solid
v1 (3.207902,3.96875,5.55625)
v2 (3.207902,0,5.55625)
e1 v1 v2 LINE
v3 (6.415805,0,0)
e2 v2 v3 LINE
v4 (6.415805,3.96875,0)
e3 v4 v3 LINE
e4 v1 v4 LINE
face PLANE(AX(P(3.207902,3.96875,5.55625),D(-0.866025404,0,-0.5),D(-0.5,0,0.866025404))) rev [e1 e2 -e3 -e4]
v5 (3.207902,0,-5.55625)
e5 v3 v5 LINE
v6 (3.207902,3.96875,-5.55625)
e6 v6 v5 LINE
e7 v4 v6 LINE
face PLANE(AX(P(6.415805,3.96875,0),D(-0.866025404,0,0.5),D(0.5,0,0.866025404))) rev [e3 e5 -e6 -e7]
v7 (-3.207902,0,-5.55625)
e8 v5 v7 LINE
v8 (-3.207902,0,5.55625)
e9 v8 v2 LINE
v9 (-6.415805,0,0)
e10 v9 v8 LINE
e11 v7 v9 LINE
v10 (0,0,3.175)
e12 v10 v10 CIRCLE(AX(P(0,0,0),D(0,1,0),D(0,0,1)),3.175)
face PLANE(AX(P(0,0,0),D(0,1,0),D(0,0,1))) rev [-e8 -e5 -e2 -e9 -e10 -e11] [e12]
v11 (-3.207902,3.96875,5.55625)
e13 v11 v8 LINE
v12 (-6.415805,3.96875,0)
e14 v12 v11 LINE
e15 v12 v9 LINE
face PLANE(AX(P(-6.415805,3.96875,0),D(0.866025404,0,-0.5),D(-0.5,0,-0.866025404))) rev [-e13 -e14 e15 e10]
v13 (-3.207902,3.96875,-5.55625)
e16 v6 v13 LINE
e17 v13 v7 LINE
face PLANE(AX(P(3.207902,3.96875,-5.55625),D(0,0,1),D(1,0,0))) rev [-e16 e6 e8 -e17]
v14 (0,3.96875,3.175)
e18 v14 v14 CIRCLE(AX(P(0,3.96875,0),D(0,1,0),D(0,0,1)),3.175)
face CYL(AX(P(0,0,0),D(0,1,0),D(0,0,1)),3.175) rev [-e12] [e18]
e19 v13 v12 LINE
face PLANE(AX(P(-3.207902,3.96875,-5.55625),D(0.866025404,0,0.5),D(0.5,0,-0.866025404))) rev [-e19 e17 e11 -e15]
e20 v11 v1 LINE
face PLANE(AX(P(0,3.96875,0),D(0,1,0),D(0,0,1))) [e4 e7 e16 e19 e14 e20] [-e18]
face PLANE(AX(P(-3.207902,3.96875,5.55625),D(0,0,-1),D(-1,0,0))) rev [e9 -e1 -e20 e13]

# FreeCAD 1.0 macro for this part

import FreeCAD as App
import Part
import Sketcher
from FreeCAD import Vector
Q = App.Units.Quantity

doc = App.newDocument("Part")
body = doc.addObject("PartDesign::Body", "Body")

sketch1 = body.newObject("Sketcher::SketchObject", "Sketch")
sketch1.AttachmentSupport = (doc.getObject("XZ_Plane"), [""])
sketch1.MapMode = "FlatFace"
sketch1.addGeometry([
    Part.LineSegment(Vector(3, -6, 0), Vector(-3, -6, 0)),
    Part.LineSegment(Vector(-3, -6, 0), Vector(-6, 0, 0)),
    Part.LineSegment(Vector(-6, 0, 0), Vector(-3, 6, 0)),
    Part.LineSegment(Vector(-3, 6, 0), Vector(3, 6, 0)),
    Part.LineSegment(Vector(3, 6, 0), Vector(6, 0, 0)),
    Part.LineSegment(Vector(6, 0, 0), Vector(3, -6, 0)),
], False)
sketch1.addConstraint([
    Sketcher.Constraint("Coincident", 0, 2, 1, 1),
    Sketcher.Constraint("Coincident", 1, 2, 2, 1),
    Sketcher.Constraint("Coincident", 2, 2, 3, 1),
    Sketcher.Constraint("Coincident", 3, 2, 4, 1),
    Sketcher.Constraint("Coincident", 4, 2, 5, 1),
    Sketcher.Constraint("Coincident", 5, 2, 0, 1),
    Sketcher.Constraint("Horizontal", 0),
    Sketcher.Constraint("Horizontal", 3),
    Sketcher.Constraint("Symmetric", 0, 2, 3, 2, -1, 1),
    Sketcher.Constraint("Symmetric", 1, 2, 4, 2, -1, 1),
    Sketcher.Constraint("PointOnObject", 1, 2, -1),
    Sketcher.Constraint("Parallel", 2, 5),
    Sketcher.Constraint("Vertical", 0, 2, 2, 2),
    Sketcher.Constraint("Angle", 1, Q("120 deg")),
    Sketcher.Constraint("DistanceY", 0, 2, -1, 1, Q("0.21875 in")),
    Sketcher.Constraint("DistanceX", 0, 2, 0, 1, 6.415805),
])
pad1 = body.newObject("PartDesign::Pad", "Pad")
pad1.Profile = sketch1
pad1.Length = Q("0.15625 in")
pad1.Reversed = True

sketch2 = body.newObject("Sketcher::SketchObject", "Sketch001")
sketch2.AttachmentSupport = (doc.getObject("XZ_Plane"), [""])
sketch2.MapMode = "FlatFace"
sketch2.AttachmentOffset = App.Placement(Vector(0, 0, -0.15625 * 25.4), App.Rotation())
sketch2.addGeometry(Part.Circle(Vector(0, 0, 0), Vector(0, 0, 1), 3.2), False)
sketch2.addConstraint([
    Sketcher.Constraint("Coincident", 0, 3, -1, 1),
    Sketcher.Constraint("Diameter", 0, Q("0.25 in")),
])
pocket1 = body.newObject("PartDesign::Pocket", "Pocket")
pocket1.Profile = sketch2
pocket1.Type = "ThroughAll"
pocket1.Reversed = True

doc.recompute()
